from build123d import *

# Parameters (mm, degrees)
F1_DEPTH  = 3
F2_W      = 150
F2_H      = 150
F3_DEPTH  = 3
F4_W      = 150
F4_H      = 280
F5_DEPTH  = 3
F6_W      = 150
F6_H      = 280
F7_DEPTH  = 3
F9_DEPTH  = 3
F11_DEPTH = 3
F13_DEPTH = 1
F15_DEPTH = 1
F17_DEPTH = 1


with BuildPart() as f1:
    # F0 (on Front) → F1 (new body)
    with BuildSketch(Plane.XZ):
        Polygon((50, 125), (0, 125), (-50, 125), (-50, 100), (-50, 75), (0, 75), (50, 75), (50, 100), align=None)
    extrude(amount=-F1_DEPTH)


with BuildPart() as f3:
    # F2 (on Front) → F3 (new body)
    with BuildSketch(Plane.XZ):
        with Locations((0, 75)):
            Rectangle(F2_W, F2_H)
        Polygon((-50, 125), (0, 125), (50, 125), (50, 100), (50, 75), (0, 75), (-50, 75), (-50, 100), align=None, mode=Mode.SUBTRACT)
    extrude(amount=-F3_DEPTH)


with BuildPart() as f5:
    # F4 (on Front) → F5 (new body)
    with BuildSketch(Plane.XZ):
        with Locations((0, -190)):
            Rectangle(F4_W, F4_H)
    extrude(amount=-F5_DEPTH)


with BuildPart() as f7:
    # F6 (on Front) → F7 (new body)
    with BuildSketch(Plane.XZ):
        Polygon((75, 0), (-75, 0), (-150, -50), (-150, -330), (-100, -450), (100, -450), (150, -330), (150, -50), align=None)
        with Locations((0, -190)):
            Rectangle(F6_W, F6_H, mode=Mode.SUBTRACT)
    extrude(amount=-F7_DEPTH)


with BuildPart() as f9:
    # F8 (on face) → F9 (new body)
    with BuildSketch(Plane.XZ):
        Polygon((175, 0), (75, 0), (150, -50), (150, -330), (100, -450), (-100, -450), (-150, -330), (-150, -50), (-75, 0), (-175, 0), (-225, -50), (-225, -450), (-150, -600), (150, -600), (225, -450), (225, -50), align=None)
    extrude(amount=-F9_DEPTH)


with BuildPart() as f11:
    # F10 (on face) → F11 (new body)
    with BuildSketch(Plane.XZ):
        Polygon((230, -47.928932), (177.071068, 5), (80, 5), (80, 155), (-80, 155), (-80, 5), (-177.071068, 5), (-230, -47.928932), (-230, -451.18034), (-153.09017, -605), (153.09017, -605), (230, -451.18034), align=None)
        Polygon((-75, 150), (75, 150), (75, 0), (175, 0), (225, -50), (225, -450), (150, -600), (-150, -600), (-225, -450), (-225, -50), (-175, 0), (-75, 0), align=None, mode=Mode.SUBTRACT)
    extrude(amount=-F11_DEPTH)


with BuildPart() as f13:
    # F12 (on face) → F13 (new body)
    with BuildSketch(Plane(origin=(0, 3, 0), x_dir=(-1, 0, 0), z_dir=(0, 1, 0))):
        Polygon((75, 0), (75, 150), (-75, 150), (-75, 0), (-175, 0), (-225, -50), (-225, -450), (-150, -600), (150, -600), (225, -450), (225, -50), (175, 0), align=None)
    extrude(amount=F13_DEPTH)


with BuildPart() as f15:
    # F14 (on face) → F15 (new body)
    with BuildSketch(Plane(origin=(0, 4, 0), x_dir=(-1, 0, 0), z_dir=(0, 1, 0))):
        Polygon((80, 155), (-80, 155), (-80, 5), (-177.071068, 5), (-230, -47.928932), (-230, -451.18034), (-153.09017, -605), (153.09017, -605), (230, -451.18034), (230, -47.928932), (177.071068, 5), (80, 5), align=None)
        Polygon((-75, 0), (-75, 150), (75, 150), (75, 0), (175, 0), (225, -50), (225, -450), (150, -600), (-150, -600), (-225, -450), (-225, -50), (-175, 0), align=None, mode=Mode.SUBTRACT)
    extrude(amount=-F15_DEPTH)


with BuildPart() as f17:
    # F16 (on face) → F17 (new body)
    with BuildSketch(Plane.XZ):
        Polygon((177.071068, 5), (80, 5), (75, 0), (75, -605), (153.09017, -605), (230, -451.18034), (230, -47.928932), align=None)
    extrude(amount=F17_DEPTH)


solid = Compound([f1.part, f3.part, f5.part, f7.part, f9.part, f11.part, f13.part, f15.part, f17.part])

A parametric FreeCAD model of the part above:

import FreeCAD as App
import Part
import Sketcher
from FreeCAD import Vector
Q = App.Units.Quantity

doc = App.newDocument("Part")
body = doc.addObject("PartDesign::Body", "Body")

sketch1 = doc.addObject("Sketcher::SketchObject", "Sketch")
body.addObject(sketch1)
sketch1.AttachmentSupport = (doc.XZ_Plane, [""])
sketch1.MapMode = "FlatFace"
sketch1.addGeometry(Part.LineSegment(Vector(50, 125, 0), Vector(-50, 125, 0)), False)
sketch1.addGeometry(Part.LineSegment(Vector(-50, 125, 0), Vector(-50, 75, 0)), False)
sketch1.addGeometry(Part.LineSegment(Vector(-50, 75, 0), Vector(50, 75, 0)), False)
sketch1.addGeometry(Part.LineSegment(Vector(50, 75, 0), Vector(50, 125, 0)), False)
sketch1.addConstraint(Sketcher.Constraint("Coincident", 0, 2, 1, 1))
sketch1.addConstraint(Sketcher.Constraint("Coincident", 1, 2, 2, 1))
sketch1.addConstraint(Sketcher.Constraint("Coincident", 2, 2, 3, 1))
sketch1.addConstraint(Sketcher.Constraint("Coincident", 3, 2, 0, 1))
sketch1.addConstraint(Sketcher.Constraint("Horizontal", 0))
sketch1.addConstraint(Sketcher.Constraint("Vertical", 1))
sketch1.addConstraint(Sketcher.Constraint("Horizontal", 2))
sketch1.addConstraint(Sketcher.Constraint("Vertical", 3))
sketch1.addConstraint(Sketcher.Constraint("DistanceX", 0, 2, 0, 1, 100.0))
sketch1.addConstraint(Sketcher.Constraint("DistanceY", 1, 2, 1, 1, 50.0))
sketch1.addConstraint(Sketcher.Constraint("DistanceX", 0, 2, -1, 1, 50.0))
sketch1.addConstraint(Sketcher.Constraint("DistanceY", -1, 1, 0, 2, 125.0))
pad1 = doc.addObject("PartDesign::Pad", "Pad")
body.addObject(pad1)
pad1.Profile = sketch1
pad1.Length = 3
pad1.Reversed = True
body2 = doc.addObject("PartDesign::Body", "Body001")

sketch2 = doc.addObject("Sketcher::SketchObject", "Sketch001")
body2.addObject(sketch2)
sketch2.AttachmentSupport = (doc.getObject("XZ_Plane001"), [""])
sketch2.MapMode = "FlatFace"
sketch2.addGeometry(Part.LineSegment(Vector(-75, 150, 0), Vector(-75, 0, 0)), False)
sketch2.addGeometry(Part.LineSegment(Vector(-75, 0, 0), Vector(75, 0, 0)), False)
sketch2.addGeometry(Part.LineSegment(Vector(75, 0, 0), Vector(75, 150, 0)), False)
sketch2.addGeometry(Part.LineSegment(Vector(75, 150, 0), Vector(-75, 150, 0)), False)
sketch2.addGeometry(Part.LineSegment(Vector(-50, 75, 0), Vector(-50, 125, 0)), False)
sketch2.addGeometry(Part.LineSegment(Vector(-50, 125, 0), Vector(50, 125, 0)), False)
sketch2.addGeometry(Part.LineSegment(Vector(50, 125, 0), Vector(50, 75, 0)), False)
sketch2.addGeometry(Part.LineSegment(Vector(50, 75, 0), Vector(-50, 75, 0)), False)
sketch2.addConstraint(Sketcher.Constraint("Coincident", 0, 2, 1, 1))
sketch2.addConstraint(Sketcher.Constraint("Coincident", 1, 2, 2, 1))
sketch2.addConstraint(Sketcher.Constraint("Coincident", 2, 2, 3, 1))
sketch2.addConstraint(Sketcher.Constraint("Coincident", 3, 2, 0, 1))
sketch2.addConstraint(Sketcher.Constraint("Coincident", 4, 2, 5, 1))
sketch2.addConstraint(Sketcher.Constraint("Coincident", 5, 2, 6, 1))
sketch2.addConstraint(Sketcher.Constraint("Coincident", 6, 2, 7, 1))
sketch2.addConstraint(Sketcher.Constraint("Coincident", 7, 2, 4, 1))
sketch2.addConstraint(Sketcher.Constraint("Vertical", 0))
sketch2.addConstraint(Sketcher.Constraint("Horizontal", 1))
sketch2.addConstraint(Sketcher.Constraint("Vertical", 2))
sketch2.addConstraint(Sketcher.Constraint("Horizontal", 3))
sketch2.addConstraint(Sketcher.Constraint("Vertical", 4))
sketch2.addConstraint(Sketcher.Constraint("Horizontal", 5))
sketch2.addConstraint(Sketcher.Constraint("Vertical", 6))
sketch2.addConstraint(Sketcher.Constraint("Horizontal", 7))
sketch2.addConstraint(Sketcher.Constraint("Symmetric", 0, 2, 1, 2, -1, 1))
sketch2.addConstraint(Sketcher.Constraint("Equal", 3, 0))
sketch2.addConstraint(Sketcher.Constraint("DistanceX", 1, 1, 1, 2, 150.0))
sketch2.addConstraint(Sketcher.Constraint("DistanceX", 5, 1, 5, 2, 100.0))
sketch2.addConstraint(Sketcher.Constraint("DistanceY", 4, 1, 4, 2, 50.0))
sketch2.addConstraint(Sketcher.Constraint("DistanceX", 4, 2, -1, 1, 50.0))
sketch2.addConstraint(Sketcher.Constraint("DistanceY", -1, 1, 4, 2, 125.0))
pad2 = doc.addObject("PartDesign::Pad", "Pad001")
body2.addObject(pad2)
pad2.Profile = sketch2
pad2.Length = 3
pad2.Reversed = True
body3 = doc.addObject("PartDesign::Body", "Body002")

sketch3 = doc.addObject("Sketcher::SketchObject", "Sketch002")
body3.addObject(sketch3)
sketch3.AttachmentSupport = (doc.getObject("XZ_Plane002"), [""])
sketch3.MapMode = "FlatFace"
sketch3.addGeometry(Part.LineSegment(Vector(-75, -50, 0), Vector(-75, -330, 0)), False)
sketch3.addGeometry(Part.LineSegment(Vector(-75, -330, 0), Vector(75, -330, 0)), False)
sketch3.addGeometry(Part.LineSegment(Vector(75, -330, 0), Vector(75, -50, 0)), False)
sketch3.addGeometry(Part.LineSegment(Vector(75, -50, 0), Vector(-75, -50, 0)), False)
sketch3.addConstraint(Sketcher.Constraint("Coincident", 0, 2, 1, 1))
sketch3.addConstraint(Sketcher.Constraint("Coincident", 1, 2, 2, 1))
sketch3.addConstraint(Sketcher.Constraint("Coincident", 2, 2, 3, 1))
sketch3.addConstraint(Sketcher.Constraint("Coincident", 3, 2, 0, 1))
sketch3.addConstraint(Sketcher.Constraint("Vertical", 0))
sketch3.addConstraint(Sketcher.Constraint("Horizontal", 1))
sketch3.addConstraint(Sketcher.Constraint("Vertical", 2))
sketch3.addConstraint(Sketcher.Constraint("Horizontal", 3))
sketch3.addConstraint(Sketcher.Constraint("DistanceX", 1, 1, 1, 2, 150.0))
sketch3.addConstraint(Sketcher.Constraint("DistanceY", 0, 2, 0, 1, 280.0))
sketch3.addConstraint(Sketcher.Constraint("DistanceX", 0, 2, -1, 1, 75.0))
sketch3.addConstraint(Sketcher.Constraint("DistanceY", 0, 2, -1, 1, 330.0))
pad3 = doc.addObject("PartDesign::Pad", "Pad002")
body3.addObject(pad3)
pad3.Profile = sketch3
pad3.Length = 3
pad3.Reversed = True
body4 = doc.addObject("PartDesign::Body", "Body003")

sketch4 = doc.addObject("Sketcher::SketchObject", "Sketch003")
body4.addObject(sketch4)
sketch4.AttachmentSupport = (doc.getObject("XZ_Plane003"), [""])
sketch4.MapMode = "FlatFace"
sketch4.addGeometry(Part.LineSegment(Vector(75, 0, 0), Vector(-75, 0, 0)), False)
sketch4.addGeometry(Part.LineSegment(Vector(-75, 0, 0), Vector(-150, -50, 0)), False)
sketch4.addGeometry(Part.LineSegment(Vector(-150, -50, 0), Vector(-150, -330, 0)), False)
sketch4.addGeometry(Part.LineSegment(Vector(-150, -330, 0), Vector(-100, -450, 0)), False)
sketch4.addGeometry(Part.LineSegment(Vector(-100, -450, 0), Vector(100, -450, 0)), False)
sketch4.addGeometry(Part.LineSegment(Vector(100, -450, 0), Vector(150, -330, 0)), False)
sketch4.addGeometry(Part.LineSegment(Vector(150, -330, 0), Vector(150, -50, 0)), False)
sketch4.addGeometry(Part.LineSegment(Vector(150, -50, 0), Vector(75, 0, 0)), False)
sketch4.addGeometry(Part.LineSegment(Vector(75, -330, 0), Vector(-75, -330, 0)), False)
sketch4.addGeometry(Part.LineSegment(Vector(-75, -330, 0), Vector(-75, -50, 0)), False)
sketch4.addGeometry(Part.LineSegment(Vector(-75, -50, 0), Vector(75, -50, 0)), False)
sketch4.addGeometry(Part.LineSegment(Vector(75, -50, 0), Vector(75, -330, 0)), False)
sketch4.addConstraint(Sketcher.Constraint("Coincident", 0, 2, 1, 1))
sketch4.addConstraint(Sketcher.Constraint("Coincident", 1, 2, 2, 1))
sketch4.addConstraint(Sketcher.Constraint("Coincident", 2, 2, 3, 1))
sketch4.addConstraint(Sketcher.Constraint("Coincident", 3, 2, 4, 1))
sketch4.addConstraint(Sketcher.Constraint("Coincident", 4, 2, 5, 1))
sketch4.addConstraint(Sketcher.Constraint("Coincident", 5, 2, 6, 1))
sketch4.addConstraint(Sketcher.Constraint("Coincident", 6, 2, 7, 1))
sketch4.addConstraint(Sketcher.Constraint("Coincident", 7, 2, 0, 1))
sketch4.addConstraint(Sketcher.Constraint("Coincident", 8, 2, 9, 1))
sketch4.addConstraint(Sketcher.Constraint("Coincident", 9, 2, 10, 1))
sketch4.addConstraint(Sketcher.Constraint("Coincident", 10, 2, 11, 1))
sketch4.addConstraint(Sketcher.Constraint("Coincident", 11, 2, 8, 1))
sketch4.addConstraint(Sketcher.Constraint("Horizontal", 0))
sketch4.addConstraint(Sketcher.Constraint("Vertical", 2))
sketch4.addConstraint(Sketcher.Constraint("Horizontal", 4))
sketch4.addConstraint(Sketcher.Constraint("Vertical", 6))
sketch4.addConstraint(Sketcher.Constraint("Horizontal", 8))
sketch4.addConstraint(Sketcher.Constraint("Vertical", 9))
sketch4.addConstraint(Sketcher.Constraint("Horizontal", 10))
sketch4.addConstraint(Sketcher.Constraint("Vertical", 11))
sketch4.addConstraint(Sketcher.Constraint("Symmetric", 0, 2, 7, 2, -1, 1))
sketch4.addConstraint(Sketcher.Constraint("Symmetric", 2, 2, 5, 2, -2))
sketch4.addConstraint(Sketcher.Constraint("Horizontal", 1, 2, 6, 2))
sketch4.addConstraint(Sketcher.Constraint("Horizontal", 5, 2, 8, 2))
sketch4.addConstraint(Sketcher.Constraint("Horizontal", 6, 2, 9, 2))
sketch4.addConstraint(Sketcher.Constraint("Vertical", 0, 2, 8, 2))
sketch4.addConstraint(Sketcher.Constraint("Vertical", 7, 2, 10, 2))
sketch4.addConstraint(Sketcher.Constraint("Equal", 3, 5))
sketch4.addConstraint(Sketcher.Constraint("DistanceX", 0, 2, 0, 1, 150.0))
sketch4.addConstraint(Sketcher.Constraint("DistanceX", 4, 1, 4, 2, 200.0))
sketch4.addConstraint(Sketcher.Constraint("DistanceY", 2, 2, 2, 1, 280.0))
sketch4.addConstraint(Sketcher.Constraint("Distance", 3, 130.0))
sketch4.addConstraint(Sketcher.Constraint("DistanceX", 1, 2, -1, 1, 150.0))
sketch4.addConstraint(Sketcher.Constraint("DistanceY", 1, 2, -1, 1, 50.0))
pad4 = doc.addObject("PartDesign::Pad", "Pad003")
body4.addObject(pad4)
pad4.Profile = sketch4
pad4.Length = 3
pad4.Reversed = True
body5 = doc.addObject("PartDesign::Body", "Body004")

sketch5 = doc.addObject("Sketcher::SketchObject", "Sketch004")
body5.addObject(sketch5)
sketch5.AttachmentSupport = (doc.getObject("XZ_Plane004"), [""])
sketch5.MapMode = "FlatFace"
sketch5.addGeometry(Part.LineSegment(Vector(175, 0, 0), Vector(75, 0, 0)), False)
sketch5.addGeometry(Part.LineSegment(Vector(75, 0, 0), Vector(150, -50, 0)), False)
sketch5.addGeometry(Part.LineSegment(Vector(150, -50, 0), Vector(150, -330, 0)), False)
sketch5.addGeometry(Part.LineSegment(Vector(150, -330, 0), Vector(100, -450, 0)), False)
sketch5.addGeometry(Part.LineSegment(Vector(100, -450, 0), Vector(-100, -450, 0)), False)
sketch5.addGeometry(Part.LineSegment(Vector(-100, -450, 0), Vector(-150, -330, 0)), False)
sketch5.addGeometry(Part.LineSegment(Vector(-150, -330, 0), Vector(-150, -50, 0)), False)
sketch5.addGeometry(Part.LineSegment(Vector(-150, -50, 0), Vector(-75, 0, 0)), False)
sketch5.addGeometry(Part.LineSegment(Vector(-75, 0, 0), Vector(-175, 0, 0)), False)
sketch5.addGeometry(Part.LineSegment(Vector(-175, 0, 0), Vector(-225, -50, 0)), False)
sketch5.addGeometry(Part.LineSegment(Vector(-225, -50, 0), Vector(-225, -450, 0)), False)
sketch5.addGeometry(Part.LineSegment(Vector(-225, -450, 0), Vector(-150, -600, 0)), False)
sketch5.addGeometry(Part.LineSegment(Vector(-150, -600, 0), Vector(150, -600, 0)), False)
sketch5.addGeometry(Part.LineSegment(Vector(150, -600, 0), Vector(225, -450, 0)), False)
sketch5.addGeometry(Part.LineSegment(Vector(225, -450, 0), Vector(225, -50, 0)), False)
sketch5.addGeometry(Part.LineSegment(Vector(225, -50, 0), Vector(175, 0, 0)), False)
sketch5.addConstraint(Sketcher.Constraint("Coincident", 0, 2, 1, 1))
sketch5.addConstraint(Sketcher.Constraint("Coincident", 1, 2, 2, 1))
sketch5.addConstraint(Sketcher.Constraint("Coincident", 2, 2, 3, 1))
sketch5.addConstraint(Sketcher.Constraint("Coincident", 3, 2, 4, 1))
sketch5.addConstraint(Sketcher.Constraint("Coincident", 4, 2, 5, 1))
sketch5.addConstraint(Sketcher.Constraint("Coincident", 5, 2, 6, 1))
sketch5.addConstraint(Sketcher.Constraint("Coincident", 6, 2, 7, 1))
sketch5.addConstraint(Sketcher.Constraint("Coincident", 7, 2, 8, 1))
sketch5.addConstraint(Sketcher.Constraint("Coincident", 8, 2, 9, 1))
sketch5.addConstraint(Sketcher.Constraint("Coincident", 9, 2, 10, 1))
sketch5.addConstraint(Sketcher.Constraint("Coincident", 10, 2, 11, 1))
sketch5.addConstraint(Sketcher.Constraint("Coincident", 11, 2, 12, 1))
sketch5.addConstraint(Sketcher.Constraint("Coincident", 12, 2, 13, 1))
sketch5.addConstraint(Sketcher.Constraint("Coincident", 13, 2, 14, 1))
sketch5.addConstraint(Sketcher.Constraint("Coincident", 14, 2, 15, 1))
sketch5.addConstraint(Sketcher.Constraint("Coincident", 15, 2, 0, 1))
sketch5.addConstraint(Sketcher.Constraint("Horizontal", 0))
sketch5.addConstraint(Sketcher.Constraint("Vertical", 2))
sketch5.addConstraint(Sketcher.Constraint("Horizontal", 4))
sketch5.addConstraint(Sketcher.Constraint("Vertical", 6))
sketch5.addConstraint(Sketcher.Constraint("Horizontal", 8))
sketch5.addConstraint(Sketcher.Constraint("Vertical", 10))
sketch5.addConstraint(Sketcher.Constraint("Horizontal", 12))
sketch5.addConstraint(Sketcher.Constraint("Vertical", 14))
sketch5.addConstraint(Sketcher.Constraint("Symmetric", 0, 2, 7, 2, -1, 1))
sketch5.addConstraint(Sketcher.Constraint("Symmetric", 2, 2, 5, 2, -2))
sketch5.addConstraint(Sketcher.Constraint("Symmetric", 10, 2, 13, 2, -2))
sketch5.addConstraint(Sketcher.Constraint("Symmetric", 8, 2, 15, 2, -2))
sketch5.addConstraint(Sketcher.Constraint("Perpendicular", 9, 15))
sketch5.addConstraint(Sketcher.Constraint("Horizontal", 1, 2, 6, 2))
sketch5.addConstraint(Sketcher.Constraint("Horizontal", 6, 2, 9, 2))
sketch5.addConstraint(Sketcher.Constraint("Horizontal", 4, 2, 10, 2))
sketch5.addConstraint(Sketcher.Constraint("Horizontal", 9, 2, 14, 2))
sketch5.addConstraint(Sketcher.Constraint("Vertical", 6, 2, 11, 2))
sketch5.addConstraint(Sketcher.Constraint("Vertical", 2, 2, 12, 2))
sketch5.addConstraint(Sketcher.Constraint("Equal", 3, 5))
sketch5.addConstraint(Sketcher.Constraint("DistanceX", 0, 2, 0, 1, 100.0))
sketch5.addConstraint(Sketcher.Constraint("DistanceX", 4, 2, 4, 1, 200.0))
sketch5.addConstraint(Sketcher.Constraint("DistanceX", 12, 1, 12, 2, 300.0))
sketch5.addConstraint(Sketcher.Constraint("DistanceY", 2, 2, 2, 1, 280.0))
sketch5.addConstraint(Sketcher.Constraint("DistanceY", 10, 2, 10, 1, 400.0))
sketch5.addConstraint(Sketcher.Constraint("DistanceX", -1, 1, 0, 2, 75.0))
sketch5.addConstraint(Sketcher.Constraint("DistanceY", 1, 2, -1, 1, 50.0))
sketch5.addConstraint(Sketcher.Constraint("DistanceY", 11, 2, -1, 1, 600.0))
pad5 = doc.addObject("PartDesign::Pad", "Pad004")
body5.addObject(pad5)
pad5.Profile = sketch5
pad5.Length = 3
pad5.Reversed = True
body6 = doc.addObject("PartDesign::Body", "Body005")

sketch6 = doc.addObject("Sketcher::SketchObject", "Sketch005")
body6.addObject(sketch6)
sketch6.AttachmentSupport = (doc.getObject("XZ_Plane005"), [""])
sketch6.MapMode = "FlatFace"
sketch6.addGeometry(Part.LineSegment(Vector(230, -47.928932, 0), Vector(177.071068, 5, 0)), False)
sketch6.addGeometry(Part.LineSegment(Vector(177.071068, 5, 0), Vector(80, 5, 0)), False)
sketch6.addGeometry(Part.LineSegment(Vector(80, 5, 0), Vector(80, 155, 0)), False)
sketch6.addGeometry(Part.LineSegment(Vector(80, 155, 0), Vector(-80, 155, 0)), False)
sketch6.addGeometry(Part.LineSegment(Vector(-80, 155, 0), Vector(-80, 5, 0)), False)
sketch6.addGeometry(Part.LineSegment(Vector(-80, 5, 0), Vector(-177.071068, 5, 0)), False)
sketch6.addGeometry(Part.LineSegment(Vector(-177.071068, 5, 0), Vector(-230, -47.928932, 0)), False)
sketch6.addGeometry(Part.LineSegment(Vector(-230, -47.928932, 0), Vector(-230, -451.18034, 0)), False)
sketch6.addGeometry(Part.LineSegment(Vector(-230, -451.18034, 0), Vector(-153.09017, -605, 0)), False)
sketch6.addGeometry(Part.LineSegment(Vector(-153.09017, -605, 0), Vector(153.09017, -605, 0)), False)
sketch6.addGeometry(Part.LineSegment(Vector(153.09017, -605, 0), Vector(230, -451.18034, 0)), False)
sketch6.addGeometry(Part.LineSegment(Vector(230, -451.18034, 0), Vector(230, -47.928932, 0)), False)
sketch6.addGeometry(Part.LineSegment(Vector(-75, 0, 0), Vector(-75, 150, 0)), False)
sketch6.addGeometry(Part.LineSegment(Vector(-75, 150, 0), Vector(75, 150, 0)), False)
sketch6.addGeometry(Part.LineSegment(Vector(75, 150, 0), Vector(75, 0, 0)), False)
sketch6.addGeometry(Part.LineSegment(Vector(75, 0, 0), Vector(175, 0, 0)), False)
sketch6.addGeometry(Part.LineSegment(Vector(175, 0, 0), Vector(225, -50, 0)), False)
sketch6.addGeometry(Part.LineSegment(Vector(225, -50, 0), Vector(225, -450, 0)), False)
sketch6.addGeometry(Part.LineSegment(Vector(225, -450, 0), Vector(150, -600, 0)), False)
sketch6.addGeometry(Part.LineSegment(Vector(150, -600, 0), Vector(-150, -600, 0)), False)
sketch6.addGeometry(Part.LineSegment(Vector(-150, -600, 0), Vector(-225, -450, 0)), False)
sketch6.addGeometry(Part.LineSegment(Vector(-225, -450, 0), Vector(-225, -50, 0)), False)
sketch6.addGeometry(Part.LineSegment(Vector(-225, -50, 0), Vector(-175, 0, 0)), False)
sketch6.addGeometry(Part.LineSegment(Vector(-175, 0, 0), Vector(-75, 0, 0)), False)
sketch6.addConstraint(Sketcher.Constraint("Coincident", 0, 2, 1, 1))
sketch6.addConstraint(Sketcher.Constraint("Coincident", 1, 2, 2, 1))
sketch6.addConstraint(Sketcher.Constraint("Coincident", 2, 2, 3, 1))
sketch6.addConstraint(Sketcher.Constraint("Coincident", 3, 2, 4, 1))
sketch6.addConstraint(Sketcher.Constraint("Coincident", 4, 2, 5, 1))
sketch6.addConstraint(Sketcher.Constraint("Coincident", 5, 2, 6, 1))
sketch6.addConstraint(Sketcher.Constraint("Coincident", 6, 2, 7, 1))
sketch6.addConstraint(Sketcher.Constraint("Coincident", 7, 2, 8, 1))
sketch6.addConstraint(Sketcher.Constraint("Coincident", 8, 2, 9, 1))
sketch6.addConstraint(Sketcher.Constraint("Coincident", 9, 2, 10, 1))
sketch6.addConstraint(Sketcher.Constraint("Coincident", 10, 2, 11, 1))
sketch6.addConstraint(Sketcher.Constraint("Coincident", 11, 2, 0, 1))
sketch6.addConstraint(Sketcher.Constraint("Coincident", 12, 2, 13, 1))
sketch6.addConstraint(Sketcher.Constraint("Coincident", 13, 2, 14, 1))
sketch6.addConstraint(Sketcher.Constraint("Coincident", 14, 2, 15, 1))
sketch6.addConstraint(Sketcher.Constraint("Coincident", 15, 2, 16, 1))
sketch6.addConstraint(Sketcher.Constraint("Coincident", 16, 2, 17, 1))
sketch6.addConstraint(Sketcher.Constraint("Coincident", 17, 2, 18, 1))
sketch6.addConstraint(Sketcher.Constraint("Coincident", 18, 2, 19, 1))
sketch6.addConstraint(Sketcher.Constraint("Coincident", 19, 2, 20, 1))
sketch6.addConstraint(Sketcher.Constraint("Coincident", 20, 2, 21, 1))
sketch6.addConstraint(Sketcher.Constraint("Coincident", 21, 2, 22, 1))
sketch6.addConstraint(Sketcher.Constraint("Coincident", 22, 2, 23, 1))
sketch6.addConstraint(Sketcher.Constraint("Coincident", 23, 2, 12, 1))
sketch6.addConstraint(Sketcher.Constraint("Horizontal", 1))
sketch6.addConstraint(Sketcher.Constraint("Vertical", 2))
sketch6.addConstraint(Sketcher.Constraint("Horizontal", 3))
sketch6.addConstraint(Sketcher.Constraint("Vertical", 4))
sketch6.addConstraint(Sketcher.Constraint("Horizontal", 5))
sketch6.addConstraint(Sketcher.Constraint("Vertical", 7))
sketch6.addConstraint(Sketcher.Constraint("Horizontal", 9))
sketch6.addConstraint(Sketcher.Constraint("Vertical", 11))
sketch6.addConstraint(Sketcher.Constraint("Vertical", 12))
sketch6.addConstraint(Sketcher.Constraint("Horizontal", 13))
sketch6.addConstraint(Sketcher.Constraint("Vertical", 14))
sketch6.addConstraint(Sketcher.Constraint("Horizontal", 15))
sketch6.addConstraint(Sketcher.Constraint("Vertical", 17))
sketch6.addConstraint(Sketcher.Constraint("Horizontal", 19))
sketch6.addConstraint(Sketcher.Constraint("Vertical", 21))
sketch6.addConstraint(Sketcher.Constraint("Horizontal", 23))
sketch6.addConstraint(Sketcher.Constraint("Symmetric", 15, 2, 22, 2, -1, 1))
sketch6.addConstraint(Sketcher.Constraint("Symmetric", 1, 2, 4, 2, -2))
sketch6.addConstraint(Sketcher.Constraint("Symmetric", 7, 2, 10, 2, -2))
sketch6.addConstraint(Sketcher.Constraint("Symmetric", 17, 2, 20, 2, -2))
sketch6.addConstraint(Sketcher.Constraint("Symmetric", 14, 2, 23, 2, -2))
sketch6.addConstraint(Sketcher.Constraint("Perpendicular", 0, 6))
sketch6.addConstraint(Sketcher.Constraint("Perpendicular", 6, 16))
sketch6.addConstraint(Sketcher.Constraint("Parallel", 10, 18))
sketch6.addConstraint(Sketcher.Constraint("Parallel", 8, 20))
sketch6.addConstraint(Sketcher.Constraint("Perpendicular", 16, 22))
sketch6.addConstraint(Sketcher.Constraint("Horizontal", 6, 2, 11, 2))
sketch6.addConstraint(Sketcher.Constraint("Horizontal", 16, 2, 21, 2))
sketch6.addConstraint(Sketcher.Constraint("Equal", 13, 2))
sketch6.addConstraint(Sketcher.Constraint("Equal", 4, 12))
sketch6.addConstraint(Sketcher.Constraint("Equal", 8, 10))
sketch6.addConstraint(Sketcher.Constraint("DistanceX", 3, 2, 3, 1, 160.0))
sketch6.addConstraint(Sketcher.Constraint("DistanceX", 13, 1, 13, 2, 150.0))
sketch6.addConstraint(Sketcher.Constraint("DistanceX", 15, 1, 15, 2, 100.0))
sketch6.addConstraint(Sketcher.Constraint("DistanceX", 19, 2, 19, 1, 300.0))
sketch6.addConstraint(Sketcher.Constraint("DistanceY", 17, 2, 17, 1, 400.0))
sketch6.addConstraint(Sketcher.Constraint("DistanceY", -1, 1, 0, 2, 5.0))
sketch6.addConstraint(Sketcher.Constraint("DistanceX", 6, 2, -1, 1, 230.0))
sketch6.addConstraint(Sketcher.Constraint("DistanceY", 8, 2, -1, 1, 605.0))
sketch6.addConstraint(Sketcher.Constraint("DistanceX", -1, 1, 16, 2, 225.0))
sketch6.addConstraint(Sketcher.Constraint("DistanceY", 18, 2, -1, 1, 600.0))
sketch6.addConstraint(Sketcher.Constraint("DistanceX", 9, 1, 9, 2, 306.18034))
sketch6.addConstraint(Sketcher.Constraint("DistanceX", 1, 2, 1, 1, 97.071068))
pad6 = doc.addObject("PartDesign::Pad", "Pad005")
body6.addObject(pad6)
pad6.Profile = sketch6
pad6.Length = 3
pad6.Reversed = True
body7 = doc.addObject("PartDesign::Body", "Body006")

sketch7 = doc.addObject("Sketcher::SketchObject", "Sketch006")
body7.addObject(sketch7)
sketch7.AttachmentSupport = (doc.getObject("XZ_Plane006"), [""])
sketch7.MapMode = "FlatFace"
sketch7.AttachmentOffset = App.Placement(Vector(0, 0, -3), App.Rotation())
sketch7.addGeometry(Part.LineSegment(Vector(-75, 0, 0), Vector(-75, 150, 0)), False)
sketch7.addGeometry(Part.LineSegment(Vector(-75, 150, 0), Vector(75, 150, 0)), False)
sketch7.addGeometry(Part.LineSegment(Vector(75, 150, 0), Vector(75, 0, 0)), False)
sketch7.addGeometry(Part.LineSegment(Vector(75, 0, 0), Vector(175, 0, 0)), False)
sketch7.addGeometry(Part.LineSegment(Vector(175, 0, 0), Vector(225, -50, 0)), False)
sketch7.addGeometry(Part.LineSegment(Vector(225, -50, 0), Vector(225, -450, 0)), False)
sketch7.addGeometry(Part.LineSegment(Vector(225, -450, 0), Vector(150, -600, 0)), False)
sketch7.addGeometry(Part.LineSegment(Vector(150, -600, 0), Vector(-150, -600, 0)), False)
sketch7.addGeometry(Part.LineSegment(Vector(-150, -600, 0), Vector(-225, -450, 0)), False)
sketch7.addGeometry(Part.LineSegment(Vector(-225, -450, 0), Vector(-225, -50, 0)), False)
sketch7.addGeometry(Part.LineSegment(Vector(-225, -50, 0), Vector(-175, 0, 0)), False)
sketch7.addGeometry(Part.LineSegment(Vector(-175, 0, 0), Vector(-75, 0, 0)), False)
sketch7.addConstraint(Sketcher.Constraint("Coincident", 0, 2, 1, 1))
sketch7.addConstraint(Sketcher.Constraint("Coincident", 1, 2, 2, 1))
sketch7.addConstraint(Sketcher.Constraint("Coincident", 2, 2, 3, 1))
sketch7.addConstraint(Sketcher.Constraint("Coincident", 3, 2, 4, 1))
sketch7.addConstraint(Sketcher.Constraint("Coincident", 4, 2, 5, 1))
sketch7.addConstraint(Sketcher.Constraint("Coincident", 5, 2, 6, 1))
sketch7.addConstraint(Sketcher.Constraint("Coincident", 6, 2, 7, 1))
sketch7.addConstraint(Sketcher.Constraint("Coincident", 7, 2, 8, 1))
sketch7.addConstraint(Sketcher.Constraint("Coincident", 8, 2, 9, 1))
sketch7.addConstraint(Sketcher.Constraint("Coincident", 9, 2, 10, 1))
sketch7.addConstraint(Sketcher.Constraint("Coincident", 10, 2, 11, 1))
sketch7.addConstraint(Sketcher.Constraint("Coincident", 11, 2, 0, 1))
sketch7.addConstraint(Sketcher.Constraint("Vertical", 0))
sketch7.addConstraint(Sketcher.Constraint("Horizontal", 1))
sketch7.addConstraint(Sketcher.Constraint("Vertical", 2))
sketch7.addConstraint(Sketcher.Constraint("Horizontal", 3))
sketch7.addConstraint(Sketcher.Constraint("Vertical", 5))
sketch7.addConstraint(Sketcher.Constraint("Horizontal", 7))
sketch7.addConstraint(Sketcher.Constraint("Vertical", 9))
sketch7.addConstraint(Sketcher.Constraint("Horizontal", 11))
sketch7.addConstraint(Sketcher.Constraint("Symmetric", 3, 2, 10, 2, -1, 1))
sketch7.addConstraint(Sketcher.Constraint("Symmetric", 5, 2, 8, 2, -2))
sketch7.addConstraint(Sketcher.Constraint("Symmetric", 2, 2, 11, 2, -2))
sketch7.addConstraint(Sketcher.Constraint("Perpendicular", 4, 10))
sketch7.addConstraint(Sketcher.Constraint("Horizontal", 4, 2, 9, 2))
sketch7.addConstraint(Sketcher.Constraint("Equal", 1, 0))
sketch7.addConstraint(Sketcher.Constraint("Equal", 6, 8))
sketch7.addConstraint(Sketcher.Constraint("DistanceX", 1, 1, 1, 2, 150.0))
sketch7.addConstraint(Sketcher.Constraint("DistanceX", 3, 1, 3, 2, 100.0))
sketch7.addConstraint(Sketcher.Constraint("DistanceX", 7, 2, 7, 1, 300.0))
sketch7.addConstraint(Sketcher.Constraint("DistanceY", 5, 2, 5, 1, 400.0))
sketch7.addConstraint(Sketcher.Constraint("DistanceX", -1, 1, 4, 2, 225.0))
sketch7.addConstraint(Sketcher.Constraint("DistanceY", 6, 2, -1, 1, 600.0))
pad7 = doc.addObject("PartDesign::Pad", "Pad006")
body7.addObject(pad7)
pad7.Profile = sketch7
pad7.Length = 1
pad7.Reversed = True
body8 = doc.addObject("PartDesign::Body", "Body007")

sketch8 = doc.addObject("Sketcher::SketchObject", "Sketch007")
body8.addObject(sketch8)
sketch8.AttachmentSupport = (doc.getObject("XZ_Plane007"), [""])
sketch8.MapMode = "FlatFace"
sketch8.AttachmentOffset = App.Placement(Vector(0, 0, -4), App.Rotation())
sketch8.addGeometry(Part.LineSegment(Vector(-80, 155, 0), Vector(80, 155, 0)), False)
sketch8.addGeometry(Part.LineSegment(Vector(80, 155, 0), Vector(80, 5, 0)), False)
sketch8.addGeometry(Part.LineSegment(Vector(80, 5, 0), Vector(177.071068, 5, 0)), False)
sketch8.addGeometry(Part.LineSegment(Vector(177.071068, 5, 0), Vector(230, -47.928932, 0)), False)
sketch8.addGeometry(Part.LineSegment(Vector(230, -47.928932, 0), Vector(230, -451.18034, 0)), False)
sketch8.addGeometry(Part.LineSegment(Vector(230, -451.18034, 0), Vector(153.09017, -605, 0)), False)
sketch8.addGeometry(Part.LineSegment(Vector(153.09017, -605, 0), Vector(-153.09017, -605, 0)), False)
sketch8.addGeometry(Part.LineSegment(Vector(-153.09017, -605, 0), Vector(-230, -451.18034, 0)), False)
sketch8.addGeometry(Part.LineSegment(Vector(-230, -451.18034, 0), Vector(-230, -47.928932, 0)), False)
sketch8.addGeometry(Part.LineSegment(Vector(-230, -47.928932, 0), Vector(-177.071068, 5, 0)), False)
sketch8.addGeometry(Part.LineSegment(Vector(-177.071068, 5, 0), Vector(-80, 5, 0)), False)
sketch8.addGeometry(Part.LineSegment(Vector(-80, 5, 0), Vector(-80, 155, 0)), False)
sketch8.addGeometry(Part.LineSegment(Vector(175, 0, 0), Vector(75, 0, 0)), False)
sketch8.addGeometry(Part.LineSegment(Vector(75, 0, 0), Vector(75, 150, 0)), False)
sketch8.addGeometry(Part.LineSegment(Vector(75, 150, 0), Vector(-75, 150, 0)), False)
sketch8.addGeometry(Part.LineSegment(Vector(-75, 150, 0), Vector(-75, 0, 0)), False)
sketch8.addGeometry(Part.LineSegment(Vector(-75, 0, 0), Vector(-175, 0, 0)), False)
sketch8.addGeometry(Part.LineSegment(Vector(-175, 0, 0), Vector(-225, -50, 0)), False)
sketch8.addGeometry(Part.LineSegment(Vector(-225, -50, 0), Vector(-225, -450, 0)), False)
sketch8.addGeometry(Part.LineSegment(Vector(-225, -450, 0), Vector(-150, -600, 0)), False)
sketch8.addGeometry(Part.LineSegment(Vector(-150, -600, 0), Vector(150, -600, 0)), False)
sketch8.addGeometry(Part.LineSegment(Vector(150, -600, 0), Vector(225, -450, 0)), False)
sketch8.addGeometry(Part.LineSegment(Vector(225, -450, 0), Vector(225, -50, 0)), False)
sketch8.addGeometry(Part.LineSegment(Vector(225, -50, 0), Vector(175, 0, 0)), False)
sketch8.addConstraint(Sketcher.Constraint("Coincident", 0, 2, 1, 1))
sketch8.addConstraint(Sketcher.Constraint("Coincident", 1, 2, 2, 1))
sketch8.addConstraint(Sketcher.Constraint("Coincident", 2, 2, 3, 1))
sketch8.addConstraint(Sketcher.Constraint("Coincident", 3, 2, 4, 1))
sketch8.addConstraint(Sketcher.Constraint("Coincident", 4, 2, 5, 1))
sketch8.addConstraint(Sketcher.Constraint("Coincident", 5, 2, 6, 1))
sketch8.addConstraint(Sketcher.Constraint("Coincident", 6, 2, 7, 1))
sketch8.addConstraint(Sketcher.Constraint("Coincident", 7, 2, 8, 1))
sketch8.addConstraint(Sketcher.Constraint("Coincident", 8, 2, 9, 1))
sketch8.addConstraint(Sketcher.Constraint("Coincident", 9, 2, 10, 1))
sketch8.addConstraint(Sketcher.Constraint("Coincident", 10, 2, 11, 1))
sketch8.addConstraint(Sketcher.Constraint("Coincident", 11, 2, 0, 1))
sketch8.addConstraint(Sketcher.Constraint("Coincident", 12, 2, 13, 1))
sketch8.addConstraint(Sketcher.Constraint("Coincident", 13, 2, 14, 1))
sketch8.addConstraint(Sketcher.Constraint("Coincident", 14, 2, 15, 1))
sketch8.addConstraint(Sketcher.Constraint("Coincident", 15, 2, 16, 1))
sketch8.addConstraint(Sketcher.Constraint("Coincident", 16, 2, 17, 1))
sketch8.addConstraint(Sketcher.Constraint("Coincident", 17, 2, 18, 1))
sketch8.addConstraint(Sketcher.Constraint("Coincident", 18, 2, 19, 1))
sketch8.addConstraint(Sketcher.Constraint("Coincident", 19, 2, 20, 1))
sketch8.addConstraint(Sketcher.Constraint("Coincident", 20, 2, 21, 1))
sketch8.addConstraint(Sketcher.Constraint("Coincident", 21, 2, 22, 1))
sketch8.addConstraint(Sketcher.Constraint("Coincident", 22, 2, 23, 1))
sketch8.addConstraint(Sketcher.Constraint("Coincident", 23, 2, 12, 1))
sketch8.addConstraint(Sketcher.Constraint("Horizontal", 0))
sketch8.addConstraint(Sketcher.Constraint("Vertical", 1))
sketch8.addConstraint(Sketcher.Constraint("Horizontal", 2))
sketch8.addConstraint(Sketcher.Constraint("Vertical", 4))
sketch8.addConstraint(Sketcher.Constraint("Horizontal", 6))
sketch8.addConstraint(Sketcher.Constraint("Vertical", 8))
sketch8.addConstraint(Sketcher.Constraint("Horizontal", 10))
sketch8.addConstraint(Sketcher.Constraint("Vertical", 11))
sketch8.addConstraint(Sketcher.Constraint("Horizontal", 12))
sketch8.addConstraint(Sketcher.Constraint("Vertical", 13))
sketch8.addConstraint(Sketcher.Constraint("Horizontal", 14))
sketch8.addConstraint(Sketcher.Constraint("Vertical", 15))
sketch8.addConstraint(Sketcher.Constraint("Horizontal", 16))
sketch8.addConstraint(Sketcher.Constraint("Vertical", 18))
sketch8.addConstraint(Sketcher.Constraint("Horizontal", 20))
sketch8.addConstraint(Sketcher.Constraint("Vertical", 22))
sketch8.addConstraint(Sketcher.Constraint("Symmetric", 12, 2, 15, 2, -1, 1))
sketch8.addConstraint(Sketcher.Constraint("Symmetric", 4, 2, 7, 2, -2))
sketch8.addConstraint(Sketcher.Constraint("Symmetric", 2, 2, 9, 2, -2))
sketch8.addConstraint(Sketcher.Constraint("Symmetric", 18, 2, 21, 2, -2))
sketch8.addConstraint(Sketcher.Constraint("Symmetric", 16, 2, 23, 2, -2))
sketch8.addConstraint(Sketcher.Constraint("Perpendicular", 3, 9))
sketch8.addConstraint(Sketcher.Constraint("Parallel", 9, 17))
sketch8.addConstraint(Sketcher.Constraint("Parallel", 7, 19))
sketch8.addConstraint(Sketcher.Constraint("Parallel", 5, 21))
sketch8.addConstraint(Sketcher.Constraint("Perpendicular", 17, 23))
sketch8.addConstraint(Sketcher.Constraint("Horizontal", 3, 2, 8, 2))
sketch8.addConstraint(Sketcher.Constraint("Equal", 2, 10))
sketch8.addConstraint(Sketcher.Constraint("Equal", 14, 1))
sketch8.addConstraint(Sketcher.Constraint("Equal", 11, 13))
sketch8.addConstraint(Sketcher.Constraint("Equal", 5, 7))
sketch8.addConstraint(Sketcher.Constraint("DistanceX", 0, 1, 0, 2, 160.0))
sketch8.addConstraint(Sketcher.Constraint("DistanceX", 12, 2, 12, 1, 100.0))
sketch8.addConstraint(Sketcher.Constraint("DistanceX", 14, 2, 14, 1, 150.0))
sketch8.addConstraint(Sketcher.Constraint("DistanceX", 20, 1, 20, 2, 300.0))
sketch8.addConstraint(Sketcher.Constraint("DistanceY", 18, 2, 18, 1, 400.0))
sketch8.addConstraint(Sketcher.Constraint("DistanceY", -1, 1, 0, 2, 155.0))
sketch8.addConstraint(Sketcher.Constraint("DistanceX", -1, 1, 3, 2, 230.0))
sketch8.addConstraint(Sketcher.Constraint("DistanceY", 5, 2, -1, 1, 605.0))
sketch8.addConstraint(Sketcher.Constraint("DistanceX", 17, 2, -1, 1, 225.0))
sketch8.addConstraint(Sketcher.Constraint("DistanceY", 19, 2, -1, 1, 600.0))
sketch8.addConstraint(Sketcher.Constraint("DistanceX", 6, 2, 6, 1, 306.18034))
sketch8.addConstraint(Sketcher.Constraint("DistanceX", 2, 1, 2, 2, 97.071068))
pad8 = doc.addObject("PartDesign::Pad", "Pad007")
body8.addObject(pad8)
pad8.Profile = sketch8
pad8.Length = 1
body9 = doc.addObject("PartDesign::Body", "Body008")

sketch9 = doc.addObject("Sketcher::SketchObject", "Sketch008")
body9.addObject(sketch9)
sketch9.AttachmentSupport = (doc.getObject("XZ_Plane008"), [""])
sketch9.MapMode = "FlatFace"
sketch9.addGeometry(Part.LineSegment(Vector(177.071068, 5, 0), Vector(80, 5, 0)), False)
sketch9.addGeometry(Part.LineSegment(Vector(80, 5, 0), Vector(75, 0, 0)), False)
sketch9.addGeometry(Part.LineSegment(Vector(75, 0, 0), Vector(75, -605, 0)), False)
sketch9.addGeometry(Part.LineSegment(Vector(75, -605, 0), Vector(153.09017, -605, 0)), False)
sketch9.addGeometry(Part.LineSegment(Vector(153.09017, -605, 0), Vector(230, -451.18034, 0)), False)
sketch9.addGeometry(Part.LineSegment(Vector(230, -451.18034, 0), Vector(230, -47.928932, 0)), False)
sketch9.addGeometry(Part.LineSegment(Vector(230, -47.928932, 0), Vector(177.071068, 5, 0)), False)
sketch9.addConstraint(Sketcher.Constraint("Coincident", 0, 2, 1, 1))
sketch9.addConstraint(Sketcher.Constraint("Coincident", 1, 2, 2, 1))
sketch9.addConstraint(Sketcher.Constraint("Coincident", 2, 2, 3, 1))
sketch9.addConstraint(Sketcher.Constraint("Coincident", 3, 2, 4, 1))
sketch9.addConstraint(Sketcher.Constraint("Coincident", 4, 2, 5, 1))
sketch9.addConstraint(Sketcher.Constraint("Coincident", 5, 2, 6, 1))
sketch9.addConstraint(Sketcher.Constraint("Coincident", 6, 2, 0, 1))
sketch9.addConstraint(Sketcher.Constraint("Horizontal", 0))
sketch9.addConstraint(Sketcher.Constraint("Vertical", 2))
sketch9.addConstraint(Sketcher.Constraint("Horizontal", 3))
sketch9.addConstraint(Sketcher.Constraint("Vertical", 5))
sketch9.addConstraint(Sketcher.Constraint("PointOnObject", 1, 2, -1))
sketch9.addConstraint(Sketcher.Constraint("Perpendicular", 1, 6))
sketch9.addConstraint(Sketcher.Constraint("DistanceY", 2, 2, 2, 1, 605.0))
sketch9.addConstraint(Sketcher.Constraint("Angle", 1, Q("-135 deg")))
sketch9.addConstraint(Sketcher.Constraint("DistanceX", -1, 1, 0, 2, 80.0))
sketch9.addConstraint(Sketcher.Constraint("DistanceY", -1, 1, 0, 2, 5.0))
sketch9.addConstraint(Sketcher.Constraint("DistanceX", -1, 1, 4, 2, 230.0))
sketch9.addConstraint(Sketcher.Constraint("DistanceX", 3, 1, 3, 2, 78.09017))
sketch9.addConstraint(Sketcher.Constraint("Distance", 4, 171.975608))
sketch9.addConstraint(Sketcher.Constraint("DistanceX", 0, 2, 0, 1, 97.071068))
pad9 = doc.addObject("PartDesign::Pad", "Pad008")
body9.addObject(pad9)
pad9.Profile = sketch9
pad9.Length = 1

doc.recompute()
